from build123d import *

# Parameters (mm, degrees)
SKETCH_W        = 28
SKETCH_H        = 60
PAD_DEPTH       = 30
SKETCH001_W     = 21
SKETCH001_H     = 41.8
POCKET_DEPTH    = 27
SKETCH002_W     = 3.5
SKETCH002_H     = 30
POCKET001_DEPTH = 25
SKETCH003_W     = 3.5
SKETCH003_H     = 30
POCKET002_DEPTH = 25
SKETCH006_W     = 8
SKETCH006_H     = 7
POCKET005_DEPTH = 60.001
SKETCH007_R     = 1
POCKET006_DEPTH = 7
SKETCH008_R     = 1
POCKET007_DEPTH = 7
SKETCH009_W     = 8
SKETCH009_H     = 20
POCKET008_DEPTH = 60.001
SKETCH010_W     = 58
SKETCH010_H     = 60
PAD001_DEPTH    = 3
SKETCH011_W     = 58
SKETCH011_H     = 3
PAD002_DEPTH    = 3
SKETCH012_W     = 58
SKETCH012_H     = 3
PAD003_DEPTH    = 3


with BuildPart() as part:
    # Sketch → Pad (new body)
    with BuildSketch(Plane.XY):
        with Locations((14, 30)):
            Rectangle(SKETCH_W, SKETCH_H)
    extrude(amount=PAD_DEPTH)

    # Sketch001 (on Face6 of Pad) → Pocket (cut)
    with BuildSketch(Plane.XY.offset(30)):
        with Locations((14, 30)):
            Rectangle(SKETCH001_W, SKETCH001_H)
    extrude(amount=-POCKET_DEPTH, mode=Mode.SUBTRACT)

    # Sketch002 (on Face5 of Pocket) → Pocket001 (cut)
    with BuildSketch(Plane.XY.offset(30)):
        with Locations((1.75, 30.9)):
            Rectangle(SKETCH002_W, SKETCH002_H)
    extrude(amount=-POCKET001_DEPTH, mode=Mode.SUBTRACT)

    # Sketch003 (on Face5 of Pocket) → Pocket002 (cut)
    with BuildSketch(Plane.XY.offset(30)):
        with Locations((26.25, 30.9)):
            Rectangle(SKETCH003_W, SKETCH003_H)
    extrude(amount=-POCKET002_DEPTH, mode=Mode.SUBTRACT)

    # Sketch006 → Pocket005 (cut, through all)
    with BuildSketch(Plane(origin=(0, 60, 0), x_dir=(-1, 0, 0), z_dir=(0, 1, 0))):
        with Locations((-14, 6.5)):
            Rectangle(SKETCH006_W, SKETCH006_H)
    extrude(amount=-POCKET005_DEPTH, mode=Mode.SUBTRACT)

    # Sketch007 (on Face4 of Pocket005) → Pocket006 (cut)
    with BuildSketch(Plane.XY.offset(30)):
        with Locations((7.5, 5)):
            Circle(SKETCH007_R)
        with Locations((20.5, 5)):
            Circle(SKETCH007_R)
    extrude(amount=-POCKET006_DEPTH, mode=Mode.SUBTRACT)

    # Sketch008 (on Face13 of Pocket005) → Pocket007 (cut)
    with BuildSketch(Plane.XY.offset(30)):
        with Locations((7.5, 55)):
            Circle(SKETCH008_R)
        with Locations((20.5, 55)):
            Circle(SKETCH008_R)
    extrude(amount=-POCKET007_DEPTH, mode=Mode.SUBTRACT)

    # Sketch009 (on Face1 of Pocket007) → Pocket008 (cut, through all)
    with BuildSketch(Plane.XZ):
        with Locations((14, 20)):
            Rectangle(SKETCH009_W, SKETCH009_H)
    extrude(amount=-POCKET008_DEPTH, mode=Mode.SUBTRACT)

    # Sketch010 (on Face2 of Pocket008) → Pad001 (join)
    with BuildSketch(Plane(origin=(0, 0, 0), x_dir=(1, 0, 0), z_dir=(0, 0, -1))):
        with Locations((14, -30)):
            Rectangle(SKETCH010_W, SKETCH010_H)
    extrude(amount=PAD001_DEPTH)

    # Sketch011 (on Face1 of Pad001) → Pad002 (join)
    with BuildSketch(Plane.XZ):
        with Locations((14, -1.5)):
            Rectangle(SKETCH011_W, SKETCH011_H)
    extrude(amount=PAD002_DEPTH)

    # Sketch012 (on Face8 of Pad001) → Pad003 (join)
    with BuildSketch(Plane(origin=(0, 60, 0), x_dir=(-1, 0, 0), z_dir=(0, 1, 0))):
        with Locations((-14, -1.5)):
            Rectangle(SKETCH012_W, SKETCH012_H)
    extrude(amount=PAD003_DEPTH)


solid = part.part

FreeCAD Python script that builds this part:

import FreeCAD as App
import Part
import Sketcher
from FreeCAD import Vector


def add_polygon(sketch, points):
    """Adds a closed chain of lines whose ends are joined by coincident constraints."""
    first, n = sketch.GeometryCount, len(points)
    for a, b in zip(points, points[1:] + points[:1]):
        sketch.addGeometry(Part.LineSegment(App.Vector(*a, 0), App.Vector(*b, 0)), False)
    for i in range(n):
        sketch.addConstraint(Sketcher.Constraint("Coincident", first + i, 2, first + (i + 1) % n, 1))

doc = App.newDocument("Part")
body = doc.addObject("PartDesign::Body", "Body")

sketch1 = body.newObject("Sketcher::SketchObject", "Sketch")
sketch1.AttachmentSupport = (doc.getObject("XY_Plane"), [""])
sketch1.MapMode = "FlatFace"
add_polygon(sketch1, [(0, 60), (0, 0), (28, 0), (28, 60)])
sketch1.addConstraint(Sketcher.Constraint("Vertical", 0))
sketch1.addConstraint(Sketcher.Constraint("Horizontal", 1))
sketch1.addConstraint(Sketcher.Constraint("Vertical", 2))
sketch1.addConstraint(Sketcher.Constraint("Horizontal", 3))
sketch1.addConstraint(Sketcher.Constraint("Coincident", 0, 2, -1, 1))
sketch1.addConstraint(Sketcher.Constraint("DistanceX", 1, 1, 1, 2, 28.0))
sketch1.addConstraint(Sketcher.Constraint("DistanceY", 0, 2, 0, 1, 60.0))
pad1 = body.newObject("PartDesign::Pad", "Pad")
pad1.Profile = sketch1
pad1.Length = 30

sketch2 = body.newObject("Sketcher::SketchObject", "Sketch001")
sketch2.AttachmentSupport = (doc.getObject("XY_Plane"), [""])
sketch2.MapMode = "FlatFace"
sketch2.AttachmentOffset = App.Placement(Vector(0, 0, 30), App.Rotation())
add_polygon(sketch2, [(4, 51), (4, 9), (24, 9), (24, 51)])
sketch2.addConstraint(Sketcher.Constraint("Vertical", 0))
sketch2.addConstraint(Sketcher.Constraint("Horizontal", 1))
sketch2.addConstraint(Sketcher.Constraint("Vertical", 2))
sketch2.addConstraint(Sketcher.Constraint("Horizontal", 3))
sketch2.addConstraint(Sketcher.Constraint("DistanceX", 1, 1, 1, 2, 21.0))
sketch2.addConstraint(Sketcher.Constraint("DistanceY", 0, 2, 0, 1, 41.8))
sketch2.addConstraint(Sketcher.Constraint("DistanceX", -1, 1, 0, 2, 3.5))
sketch2.addConstraint(Sketcher.Constraint("DistanceY", -1, 1, 0, 2, 9.1))
pocket1 = body.newObject("PartDesign::Pocket", "Pocket")
pocket1.Profile = sketch2
pocket1.Length = 27

sketch3 = body.newObject("Sketcher::SketchObject", "Sketch002")
sketch3.AttachmentSupport = (doc.getObject("XY_Plane"), [""])
sketch3.MapMode = "FlatFace"
sketch3.AttachmentOffset = App.Placement(Vector(0, 0, 30), App.Rotation())
add_polygon(sketch3, [(0, 45.9), (0, 15.9), (3.5, 15.9), (3.5, 45.9)])
sketch3.addConstraint(Sketcher.Constraint("Vertical", 0))
sketch3.addConstraint(Sketcher.Constraint("Horizontal", 1))
sketch3.addConstraint(Sketcher.Constraint("Vertical", 2))
sketch3.addConstraint(Sketcher.Constraint("Horizontal", 3))
sketch3.addConstraint(Sketcher.Constraint("PointOnObject", 0, 2, -2))
sketch3.addConstraint(Sketcher.Constraint("DistanceY", 0, 2, 0, 1, 30.0))
sketch3.addConstraint(Sketcher.Constraint("DistanceX", 1, 1, 1, 2, 3.5))
sketch3.addConstraint(Sketcher.Constraint("DistanceY", -1, 1, 0, 2, 15.9))
pocket2 = body.newObject("PartDesign::Pocket", "Pocket001")
pocket2.Profile = sketch3
pocket2.Length = 25

sketch4 = body.newObject("Sketcher::SketchObject", "Sketch003")
sketch4.AttachmentSupport = (doc.getObject("XY_Plane"), [""])
sketch4.MapMode = "FlatFace"
sketch4.AttachmentOffset = App.Placement(Vector(0, 0, 30), App.Rotation())
add_polygon(sketch4, [(24.5, 45.9), (24.5, 15.9), (28, 15.9), (28, 45.9)])
sketch4.addConstraint(Sketcher.Constraint("Vertical", 0))
sketch4.addConstraint(Sketcher.Constraint("Horizontal", 1))
sketch4.addConstraint(Sketcher.Constraint("Vertical", 2))
sketch4.addConstraint(Sketcher.Constraint("Horizontal", 3))
sketch4.addConstraint(Sketcher.Constraint("DistanceY", 0, 2, 0, 1, 30.0))
sketch4.addConstraint(Sketcher.Constraint("DistanceX", 1, 1, 1, 2, 3.5))
sketch4.addConstraint(Sketcher.Constraint("DistanceX", -1, 1, 1, 2, 28.0))
sketch4.addConstraint(Sketcher.Constraint("DistanceY", -1, 1, 0, 2, 15.9))
pocket3 = body.newObject("PartDesign::Pocket", "Pocket002")
pocket3.Profile = sketch4
pocket3.Length = 25

sketch5 = body.newObject("Sketcher::SketchObject", "Sketch004")
sketch5.AttachmentSupport = (doc.getObject("XZ_Plane"), [""])
sketch5.MapMode = "FlatFace"
sketch5.AttachmentOffset = App.Placement(Vector(0, 0, -60), App.Rotation())
add_polygon(sketch5, [(18, 10), (18, 3), (10, 3), (10, 10)])
sketch5.addConstraint(Sketcher.Constraint("Vertical", 0))
sketch5.addConstraint(Sketcher.Constraint("Horizontal", 1))
sketch5.addConstraint(Sketcher.Constraint("Vertical", 2))
sketch5.addConstraint(Sketcher.Constraint("Horizontal", 3))
sketch5.addConstraint(Sketcher.Constraint("DistanceX", 1, 2, 1, 1, 8.0))
sketch5.addConstraint(Sketcher.Constraint("DistanceY", 0, 2, 0, 1, 7.0))
sketch5.addConstraint(Sketcher.Constraint("DistanceX", -1, 1, 0, 2, 18.0))
sketch5.addConstraint(Sketcher.Constraint("DistanceY", -1, 1, 0, 2, 3.0))
pocket4 = body.newObject("PartDesign::Pocket", "Pocket003")
pocket4.Profile = sketch5
pocket4.Type = "ThroughAll"
pocket4.Reversed = True

sketch6 = body.newObject("Sketcher::SketchObject", "Sketch005")
sketch6.AttachmentSupport = (doc.getObject("XY_Plane"), [""])
sketch6.MapMode = "FlatFace"
sketch6.AttachmentOffset = App.Placement(Vector(0, 0, 30), App.Rotation())
sketch6.addGeometry(Part.Circle(Vector(7.5, 5, 0), Vector(0, 0, 1), 1), False)
sketch6.addGeometry(Part.Circle(Vector(20.5, 5, 0), Vector(0, 0, 1), 1), False)
sketch6.addConstraint(Sketcher.Constraint("Equal", 0, 1))
sketch6.addConstraint(Sketcher.Constraint("Horizontal", 0, 3, 1, 3))
sketch6.addConstraint(Sketcher.Constraint("Diameter", 0, 2.0))
sketch6.addConstraint(Sketcher.Constraint("DistanceY", -1, 1, 0, 3, 5.0))
sketch6.addConstraint(Sketcher.Constraint("DistanceX", 0, 3, 1, 3, 13.0))
sketch6.addConstraint(Sketcher.Constraint("DistanceX", -1, 1, 0, 3, 7.5))
pocket5 = body.newObject("PartDesign::Pocket", "Pocket004")
pocket5.Profile = sketch6
pocket5.Length = 7

sketch7 = body.newObject("Sketcher::SketchObject", "Sketch006")
sketch7.AttachmentSupport = (doc.getObject("XY_Plane"), [""])
sketch7.MapMode = "FlatFace"
sketch7.AttachmentOffset = App.Placement(Vector(0, 0, 30), App.Rotation())
sketch7.addGeometry(Part.Circle(Vector(7.5, 55, 0), Vector(0, 0, 1), 1), False)
sketch7.addGeometry(Part.Circle(Vector(20.5, 55, 0), Vector(0, 0, 1), 1), False)
sketch7.addConstraint(Sketcher.Constraint("Equal", 0, 1))
sketch7.addConstraint(Sketcher.Constraint("Horizontal", 0, 3, 1, 3))
sketch7.addConstraint(Sketcher.Constraint("Diameter", 0, 2.0))
sketch7.addConstraint(Sketcher.Constraint("DistanceY", -1, 1, 0, 3, 55.0))
sketch7.addConstraint(Sketcher.Constraint("DistanceX", 0, 3, 1, 3, 13.0))
sketch7.addConstraint(Sketcher.Constraint("DistanceX", -1, 1, 0, 3, 7.5))
pocket6 = body.newObject("PartDesign::Pocket", "Pocket005")
pocket6.Profile = sketch7
pocket6.Length = 7

sketch8 = body.newObject("Sketcher::SketchObject", "Sketch007")
sketch8.AttachmentSupport = (doc.getObject("XZ_Plane"), [""])
sketch8.MapMode = "FlatFace"
add_polygon(sketch8, [(10, 30), (10, 10), (18, 10), (18, 30)])
sketch8.addConstraint(Sketcher.Constraint("Vertical", 0))
sketch8.addConstraint(Sketcher.Constraint("Horizontal", 1))
sketch8.addConstraint(Sketcher.Constraint("Vertical", 2))
sketch8.addConstraint(Sketcher.Constraint("Horizontal", 3))
sketch8.addConstraint(Sketcher.Constraint("DistanceX", 1, 1, 1, 2, 8.0))
sketch8.addConstraint(Sketcher.Constraint("DistanceY", 0, 2, 0, 1, 20.0))
sketch8.addConstraint(Sketcher.Constraint("DistanceX", -1, 1, 0, 2, 10.0))
sketch8.addConstraint(Sketcher.Constraint("DistanceY", -1, 1, 0, 2, 10.0))
pocket7 = body.newObject("PartDesign::Pocket", "Pocket006")
pocket7.Profile = sketch8
pocket7.Type = "ThroughAll"

sketch9 = body.newObject("Sketcher::SketchObject", "Sketch008")
sketch9.AttachmentSupport = (doc.getObject("XY_Plane"), [""])
sketch9.MapMode = "FlatFace"
add_polygon(sketch9, [(-15, 0), (-15, 60), (43, 60), (43, 0)])
sketch9.addConstraint(Sketcher.Constraint("Vertical", 0))
sketch9.addConstraint(Sketcher.Constraint("Horizontal", 1))
sketch9.addConstraint(Sketcher.Constraint("Vertical", 2))
sketch9.addConstraint(Sketcher.Constraint("Horizontal", 3))
sketch9.addConstraint(Sketcher.Constraint("PointOnObject", 2, 2, -1))
sketch9.addConstraint(Sketcher.Constraint("DistanceX", 1, 1, 1, 2, 58.0))
sketch9.addConstraint(Sketcher.Constraint("DistanceY", 0, 1, 0, 2, 60.0))
sketch9.addConstraint(Sketcher.Constraint("DistanceX", 0, 2, -1, 1, 15.0))
pad2 = body.newObject("PartDesign::Pad", "Pad001")
pad2.Profile = sketch9
pad2.Length = 3
pad2.Reversed = True

sketch10 = body.newObject("Sketcher::SketchObject", "Sketch009")
sketch10.AttachmentSupport = (doc.getObject("XZ_Plane"), [""])
sketch10.MapMode = "FlatFace"
add_polygon(sketch10, [(-15, 0), (-15, -3), (43, -3), (43, 0)])
sketch10.addConstraint(Sketcher.Constraint("Vertical", 0))
sketch10.addConstraint(Sketcher.Constraint("Horizontal", 1))
sketch10.addConstraint(Sketcher.Constraint("Vertical", 2))
sketch10.addConstraint(Sketcher.Constraint("Horizontal", 3))
sketch10.addConstraint(Sketcher.Constraint("PointOnObject", 2, 2, -1))
sketch10.addConstraint(Sketcher.Constraint("DistanceX", 1, 1, 1, 2, 58.0))
sketch10.addConstraint(Sketcher.Constraint("DistanceY", 0, 2, 0, 1, 3.0))
sketch10.addConstraint(Sketcher.Constraint("DistanceX", 0, 2, -1, 1, 15.0))
pad3 = body.newObject("PartDesign::Pad", "Pad002")
pad3.Profile = sketch10
pad3.Length = 3

sketch11 = body.newObject("Sketcher::SketchObject", "Sketch010")
sketch11.AttachmentSupport = (doc.getObject("XZ_Plane"), [""])
sketch11.MapMode = "FlatFace"
sketch11.AttachmentOffset = App.Placement(Vector(0, 0, -60), App.Rotation())
add_polygon(sketch11, [(43, 0), (43, -3), (-15, -3), (-15, 0)])
sketch11.addConstraint(Sketcher.Constraint("Vertical", 0))
sketch11.addConstraint(Sketcher.Constraint("Horizontal", 1))
sketch11.addConstraint(Sketcher.Constraint("Vertical", 2))
sketch11.addConstraint(Sketcher.Constraint("Horizontal", 3))
sketch11.addConstraint(Sketcher.Constraint("PointOnObject", 2, 2, -1))
sketch11.addConstraint(Sketcher.Constraint("DistanceX", 1, 2, 1, 1, 58.0))
sketch11.addConstraint(Sketcher.Constraint("DistanceY", 0, 2, 0, 1, 3.0))
sketch11.addConstraint(Sketcher.Constraint("DistanceX", -1, 1, 0, 2, 43.0))
pad4 = body.newObject("PartDesign::Pad", "Pad003")
pad4.Profile = sketch11
pad4.Length = 3
pad4.Reversed = True

doc.recompute()
